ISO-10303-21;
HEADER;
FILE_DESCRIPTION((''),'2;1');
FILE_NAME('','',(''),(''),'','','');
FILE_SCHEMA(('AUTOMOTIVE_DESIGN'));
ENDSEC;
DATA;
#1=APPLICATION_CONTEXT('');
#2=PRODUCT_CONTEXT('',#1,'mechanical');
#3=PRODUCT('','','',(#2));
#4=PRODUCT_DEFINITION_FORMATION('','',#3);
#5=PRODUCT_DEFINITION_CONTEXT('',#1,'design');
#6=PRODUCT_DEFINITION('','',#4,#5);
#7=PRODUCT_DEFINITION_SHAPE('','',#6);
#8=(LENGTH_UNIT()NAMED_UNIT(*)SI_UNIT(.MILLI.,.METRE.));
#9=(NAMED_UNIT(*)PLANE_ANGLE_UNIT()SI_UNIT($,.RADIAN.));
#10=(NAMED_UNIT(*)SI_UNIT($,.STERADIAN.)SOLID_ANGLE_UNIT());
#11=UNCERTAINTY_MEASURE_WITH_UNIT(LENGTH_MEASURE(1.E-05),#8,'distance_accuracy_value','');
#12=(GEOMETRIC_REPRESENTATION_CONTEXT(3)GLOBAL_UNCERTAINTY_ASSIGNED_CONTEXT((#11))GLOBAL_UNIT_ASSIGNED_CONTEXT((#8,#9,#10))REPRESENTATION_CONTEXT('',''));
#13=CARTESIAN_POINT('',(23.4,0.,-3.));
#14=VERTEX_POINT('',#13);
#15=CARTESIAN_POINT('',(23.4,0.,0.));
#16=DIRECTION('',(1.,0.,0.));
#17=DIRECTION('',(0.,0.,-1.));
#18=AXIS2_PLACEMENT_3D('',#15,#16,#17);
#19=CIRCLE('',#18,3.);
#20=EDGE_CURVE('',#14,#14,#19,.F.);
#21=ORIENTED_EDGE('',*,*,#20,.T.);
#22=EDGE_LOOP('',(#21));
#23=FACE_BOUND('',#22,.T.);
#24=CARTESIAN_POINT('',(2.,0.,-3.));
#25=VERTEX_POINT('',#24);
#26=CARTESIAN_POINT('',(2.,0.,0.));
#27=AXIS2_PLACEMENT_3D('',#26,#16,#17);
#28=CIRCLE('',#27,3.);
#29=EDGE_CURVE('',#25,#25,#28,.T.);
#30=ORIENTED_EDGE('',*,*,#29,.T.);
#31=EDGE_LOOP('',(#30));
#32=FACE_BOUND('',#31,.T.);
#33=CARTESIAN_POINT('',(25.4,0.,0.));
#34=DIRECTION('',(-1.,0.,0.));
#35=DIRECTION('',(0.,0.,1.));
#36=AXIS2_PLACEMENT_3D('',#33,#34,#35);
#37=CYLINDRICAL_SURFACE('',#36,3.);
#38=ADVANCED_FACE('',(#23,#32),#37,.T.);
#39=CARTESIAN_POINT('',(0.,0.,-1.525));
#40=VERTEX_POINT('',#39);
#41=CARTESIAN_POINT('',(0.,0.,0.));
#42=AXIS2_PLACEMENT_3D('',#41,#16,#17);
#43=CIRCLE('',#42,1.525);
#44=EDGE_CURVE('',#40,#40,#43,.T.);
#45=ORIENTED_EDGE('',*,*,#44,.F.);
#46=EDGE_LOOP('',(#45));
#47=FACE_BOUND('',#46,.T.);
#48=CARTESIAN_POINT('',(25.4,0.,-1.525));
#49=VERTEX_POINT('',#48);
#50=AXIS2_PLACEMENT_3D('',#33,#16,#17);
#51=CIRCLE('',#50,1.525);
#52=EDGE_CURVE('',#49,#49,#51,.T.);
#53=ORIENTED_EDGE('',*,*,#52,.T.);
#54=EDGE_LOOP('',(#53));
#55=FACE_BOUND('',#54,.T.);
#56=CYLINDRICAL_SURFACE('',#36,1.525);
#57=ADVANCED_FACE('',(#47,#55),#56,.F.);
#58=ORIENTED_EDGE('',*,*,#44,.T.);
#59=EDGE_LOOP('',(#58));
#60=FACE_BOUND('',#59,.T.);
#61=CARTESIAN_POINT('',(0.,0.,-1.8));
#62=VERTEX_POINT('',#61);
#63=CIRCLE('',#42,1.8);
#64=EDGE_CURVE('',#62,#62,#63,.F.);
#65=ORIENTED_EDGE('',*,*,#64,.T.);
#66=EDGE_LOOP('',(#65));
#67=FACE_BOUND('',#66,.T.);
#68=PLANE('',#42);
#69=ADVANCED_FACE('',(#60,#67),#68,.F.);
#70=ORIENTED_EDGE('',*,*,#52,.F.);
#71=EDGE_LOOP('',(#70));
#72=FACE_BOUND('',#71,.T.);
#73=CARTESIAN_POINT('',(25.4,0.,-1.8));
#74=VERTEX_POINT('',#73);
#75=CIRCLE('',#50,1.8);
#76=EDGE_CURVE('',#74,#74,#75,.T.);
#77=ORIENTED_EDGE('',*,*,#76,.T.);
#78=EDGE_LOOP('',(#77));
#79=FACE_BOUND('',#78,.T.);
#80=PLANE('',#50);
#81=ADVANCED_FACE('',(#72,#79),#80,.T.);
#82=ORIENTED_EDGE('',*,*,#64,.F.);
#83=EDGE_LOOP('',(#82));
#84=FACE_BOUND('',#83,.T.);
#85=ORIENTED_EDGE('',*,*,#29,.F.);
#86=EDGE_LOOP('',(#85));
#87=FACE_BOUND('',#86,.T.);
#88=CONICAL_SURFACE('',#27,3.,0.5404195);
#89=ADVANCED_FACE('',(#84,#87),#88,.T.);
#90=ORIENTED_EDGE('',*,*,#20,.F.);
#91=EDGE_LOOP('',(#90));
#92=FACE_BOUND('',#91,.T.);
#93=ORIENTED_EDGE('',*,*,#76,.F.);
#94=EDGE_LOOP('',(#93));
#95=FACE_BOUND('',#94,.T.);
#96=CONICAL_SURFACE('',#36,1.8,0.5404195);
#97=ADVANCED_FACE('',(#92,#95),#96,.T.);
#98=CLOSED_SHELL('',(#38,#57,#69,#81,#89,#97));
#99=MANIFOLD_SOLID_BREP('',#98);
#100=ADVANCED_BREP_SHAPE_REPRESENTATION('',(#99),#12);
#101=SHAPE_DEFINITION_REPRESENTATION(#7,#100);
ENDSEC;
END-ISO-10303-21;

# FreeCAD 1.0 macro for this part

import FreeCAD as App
import Part
import Sketcher


def edges_at(feature, points):
    """Names of the edges that pass closest to the given points."""
    edges = feature.Shape.Edges
    near = lambda p: min(range(len(edges)), key=lambda i: edges[i].distToShape(Part.Vertex(*p))[0])
    return sorted({f"Edge{near(p) + 1}" for p in points})

doc = App.newDocument("Part")
body = doc.addObject("PartDesign::Body", "Body")

sketch1 = body.newObject("Sketcher::SketchObject", "Sketch")
sketch1.AttachmentSupport = (doc.getObject("YZ_Plane"), [""])
sketch1.MapMode = "FlatFace"
sketch1.addGeometry([
    Part.Circle(App.Vector(0, 0, 0), App.Vector(0, 0, 1), 3),
    Part.Circle(App.Vector(0, 0, 0), App.Vector(0, 0, 1), 1.5),
], False)
sketch1.addConstraint([
    Sketcher.Constraint("Coincident", 0, 3, -1, 1),
    Sketcher.Constraint("Coincident", 1, 3, -1, 1),
    Sketcher.Constraint("Diameter", 0, 6.0),
    Sketcher.Constraint("Diameter", 1, 3.05),
])
pad1 = body.newObject("PartDesign::Pad", "Pad")
pad1.Profile = sketch1
pad1.Length = 25.4
doc.recompute()

chamfer = body.newObject("PartDesign::Chamfer", "Chamfer")
chamfer.Base = (pad1, edges_at(pad1, [(0, 0, 3), (25.4, 0, 3)]))
chamfer.ChamferType = "Two distances"
chamfer.Size = 2
chamfer.Size2 = 1.2

doc.recompute()
